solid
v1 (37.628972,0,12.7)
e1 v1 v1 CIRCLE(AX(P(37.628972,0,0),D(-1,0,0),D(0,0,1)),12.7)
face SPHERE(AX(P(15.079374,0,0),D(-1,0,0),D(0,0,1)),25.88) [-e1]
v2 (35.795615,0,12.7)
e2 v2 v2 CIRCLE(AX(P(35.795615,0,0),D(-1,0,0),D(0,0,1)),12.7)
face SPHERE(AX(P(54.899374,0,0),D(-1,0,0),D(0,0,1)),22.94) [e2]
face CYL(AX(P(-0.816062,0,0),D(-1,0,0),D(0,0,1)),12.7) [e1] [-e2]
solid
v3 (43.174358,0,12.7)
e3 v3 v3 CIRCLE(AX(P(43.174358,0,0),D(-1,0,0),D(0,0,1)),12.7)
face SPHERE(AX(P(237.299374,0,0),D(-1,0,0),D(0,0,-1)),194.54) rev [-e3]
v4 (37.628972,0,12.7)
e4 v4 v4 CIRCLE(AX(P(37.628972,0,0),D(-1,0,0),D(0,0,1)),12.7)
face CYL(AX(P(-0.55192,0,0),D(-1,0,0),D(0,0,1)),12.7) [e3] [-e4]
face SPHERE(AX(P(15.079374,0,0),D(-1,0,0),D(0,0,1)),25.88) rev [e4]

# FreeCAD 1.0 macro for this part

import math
import FreeCAD as App
import Part
import Sketcher

V = App.Vector
Q = App.Units.Quantity

doc = App.newDocument("Part")
body = doc.addObject("PartDesign::Body", "Body")

sketch1 = body.newObject("Sketcher::SketchObject", "Sketch")
sketch1.AttachmentSupport = (doc.getObject("XZ_Plane"), [""])
sketch1.MapMode = "FlatFace"
sketch1.addGeometry(Part.ArcOfCircle(Part.Circle(V(54.9, 0, 0), V(0, 0, 1), 22.9), math.radians(-180), math.radians(-146)), False)
sketch1.addGeometry(Part.LineSegment(V(32, 0, 0), V(41, 0, 0)), False)
sketch1.addGeometry(Part.ArcOfCircle(Part.Circle(V(15.1, 0, 0), V(0, 0, 1), 25.9), math.radians(-29), math.radians(0)), False)
sketch1.addGeometry(Part.LineSegment(V(37.6, -12.7, 0), V(35.8, -12.7, 0)), False)
sketch1.addConstraint(Sketcher.Constraint("Coincident", 0, 1, 1, 1))
sketch1.addConstraint(Sketcher.Constraint("Coincident", 1, 2, 2, 2))
sketch1.addConstraint(Sketcher.Constraint("Coincident", 2, 1, 3, 1))
sketch1.addConstraint(Sketcher.Constraint("Coincident", 3, 2, 0, 2))
sketch1.addConstraint(Sketcher.Constraint("Horizontal", 1))
sketch1.addConstraint(Sketcher.Constraint("Horizontal", 3))
sketch1.addConstraint(Sketcher.Constraint("PointOnObject", 0, 3, -1))
sketch1.addConstraint(Sketcher.Constraint("PointOnObject", 2, 3, -1))
sketch1.addConstraint(Sketcher.Constraint("PointOnObject", 0, 1, -1))
sketch1.addConstraint(Sketcher.Constraint("DistanceX", 1, 1, 1, 2, Q("9 mm")))
sketch1.addConstraint(Sketcher.Constraint("Radius", 0, Q("22.94 mm")))
sketch1.addConstraint(Sketcher.Constraint("Radius", 2, Q("25.88 mm")))
sketch1.addConstraint(Sketcher.Constraint("DistanceY", 2, 1, -1, 1, Q("12.7 mm")))
sketch1.addConstraint(Sketcher.Constraint("DistanceX", -1, 1, 0, 3, Q("54.899374 mm")))
revolution = body.newObject("PartDesign::Revolution", "Revolution")
revolution.Profile = sketch1
revolution.ReferenceAxis = (sketch1, ["H_Axis"])
revolution.Angle = 360
body2 = doc.addObject("PartDesign::Body", "Body001")

sketch2 = body2.newObject("Sketcher::SketchObject", "Sketch001")
sketch2.AttachmentSupport = (doc.getObject("XZ_Plane001"), [""])
sketch2.MapMode = "FlatFace"
sketch2.addGeometry(Part.LineSegment(V(43.2, -12.7, 0), V(37.6, -12.7, 0)), False)
sketch2.addGeometry(Part.ArcOfCircle(Part.Circle(V(15.1, 0, 0), V(0, 0, 1), 25.9), math.radians(-29), math.radians(0)), False)
sketch2.addGeometry(Part.LineSegment(V(41, 0, 0), V(42.8, 0, 0)), False)
sketch2.addGeometry(Part.ArcOfCircle(Part.Circle(V(237.3, 0, 0), V(0, 0, 1), 194.5), math.radians(-180), math.radians(-176.26)), False)
sketch2.addConstraint(Sketcher.Constraint("Coincident", 0, 2, 1, 1))
sketch2.addConstraint(Sketcher.Constraint("Coincident", 1, 2, 2, 1))
sketch2.addConstraint(Sketcher.Constraint("Coincident", 2, 2, 3, 1))
sketch2.addConstraint(Sketcher.Constraint("Coincident", 3, 2, 0, 1))
sketch2.addConstraint(Sketcher.Constraint("Horizontal", 0))
sketch2.addConstraint(Sketcher.Constraint("Horizontal", 2))
sketch2.addConstraint(Sketcher.Constraint("PointOnObject", 1, 3, -1))
sketch2.addConstraint(Sketcher.Constraint("PointOnObject", 3, 3, -1))
sketch2.addConstraint(Sketcher.Constraint("PointOnObject", 1, 2, -1))
sketch2.addConstraint(Sketcher.Constraint("Radius", 1, Q("25.88 mm")))
sketch2.addConstraint(Sketcher.Constraint("Radius", 3, Q("194.54 mm")))
sketch2.addConstraint(Sketcher.Constraint("DistanceX", 2, 1, 2, 2, Q("1.8 mm")))
sketch2.addConstraint(Sketcher.Constraint("DistanceY", 0, 2, -1, 1, Q("12.7 mm")))
sketch2.addConstraint(Sketcher.Constraint("DistanceX", -1, 1, 3, 2, Q("43.174358 mm")))
revolution2 = body2.newObject("PartDesign::Revolution", "Revolution001")
revolution2.Profile = sketch2
revolution2.ReferenceAxis = (sketch2, ["H_Axis"])
revolution2.Angle = 360

doc.recompute()
